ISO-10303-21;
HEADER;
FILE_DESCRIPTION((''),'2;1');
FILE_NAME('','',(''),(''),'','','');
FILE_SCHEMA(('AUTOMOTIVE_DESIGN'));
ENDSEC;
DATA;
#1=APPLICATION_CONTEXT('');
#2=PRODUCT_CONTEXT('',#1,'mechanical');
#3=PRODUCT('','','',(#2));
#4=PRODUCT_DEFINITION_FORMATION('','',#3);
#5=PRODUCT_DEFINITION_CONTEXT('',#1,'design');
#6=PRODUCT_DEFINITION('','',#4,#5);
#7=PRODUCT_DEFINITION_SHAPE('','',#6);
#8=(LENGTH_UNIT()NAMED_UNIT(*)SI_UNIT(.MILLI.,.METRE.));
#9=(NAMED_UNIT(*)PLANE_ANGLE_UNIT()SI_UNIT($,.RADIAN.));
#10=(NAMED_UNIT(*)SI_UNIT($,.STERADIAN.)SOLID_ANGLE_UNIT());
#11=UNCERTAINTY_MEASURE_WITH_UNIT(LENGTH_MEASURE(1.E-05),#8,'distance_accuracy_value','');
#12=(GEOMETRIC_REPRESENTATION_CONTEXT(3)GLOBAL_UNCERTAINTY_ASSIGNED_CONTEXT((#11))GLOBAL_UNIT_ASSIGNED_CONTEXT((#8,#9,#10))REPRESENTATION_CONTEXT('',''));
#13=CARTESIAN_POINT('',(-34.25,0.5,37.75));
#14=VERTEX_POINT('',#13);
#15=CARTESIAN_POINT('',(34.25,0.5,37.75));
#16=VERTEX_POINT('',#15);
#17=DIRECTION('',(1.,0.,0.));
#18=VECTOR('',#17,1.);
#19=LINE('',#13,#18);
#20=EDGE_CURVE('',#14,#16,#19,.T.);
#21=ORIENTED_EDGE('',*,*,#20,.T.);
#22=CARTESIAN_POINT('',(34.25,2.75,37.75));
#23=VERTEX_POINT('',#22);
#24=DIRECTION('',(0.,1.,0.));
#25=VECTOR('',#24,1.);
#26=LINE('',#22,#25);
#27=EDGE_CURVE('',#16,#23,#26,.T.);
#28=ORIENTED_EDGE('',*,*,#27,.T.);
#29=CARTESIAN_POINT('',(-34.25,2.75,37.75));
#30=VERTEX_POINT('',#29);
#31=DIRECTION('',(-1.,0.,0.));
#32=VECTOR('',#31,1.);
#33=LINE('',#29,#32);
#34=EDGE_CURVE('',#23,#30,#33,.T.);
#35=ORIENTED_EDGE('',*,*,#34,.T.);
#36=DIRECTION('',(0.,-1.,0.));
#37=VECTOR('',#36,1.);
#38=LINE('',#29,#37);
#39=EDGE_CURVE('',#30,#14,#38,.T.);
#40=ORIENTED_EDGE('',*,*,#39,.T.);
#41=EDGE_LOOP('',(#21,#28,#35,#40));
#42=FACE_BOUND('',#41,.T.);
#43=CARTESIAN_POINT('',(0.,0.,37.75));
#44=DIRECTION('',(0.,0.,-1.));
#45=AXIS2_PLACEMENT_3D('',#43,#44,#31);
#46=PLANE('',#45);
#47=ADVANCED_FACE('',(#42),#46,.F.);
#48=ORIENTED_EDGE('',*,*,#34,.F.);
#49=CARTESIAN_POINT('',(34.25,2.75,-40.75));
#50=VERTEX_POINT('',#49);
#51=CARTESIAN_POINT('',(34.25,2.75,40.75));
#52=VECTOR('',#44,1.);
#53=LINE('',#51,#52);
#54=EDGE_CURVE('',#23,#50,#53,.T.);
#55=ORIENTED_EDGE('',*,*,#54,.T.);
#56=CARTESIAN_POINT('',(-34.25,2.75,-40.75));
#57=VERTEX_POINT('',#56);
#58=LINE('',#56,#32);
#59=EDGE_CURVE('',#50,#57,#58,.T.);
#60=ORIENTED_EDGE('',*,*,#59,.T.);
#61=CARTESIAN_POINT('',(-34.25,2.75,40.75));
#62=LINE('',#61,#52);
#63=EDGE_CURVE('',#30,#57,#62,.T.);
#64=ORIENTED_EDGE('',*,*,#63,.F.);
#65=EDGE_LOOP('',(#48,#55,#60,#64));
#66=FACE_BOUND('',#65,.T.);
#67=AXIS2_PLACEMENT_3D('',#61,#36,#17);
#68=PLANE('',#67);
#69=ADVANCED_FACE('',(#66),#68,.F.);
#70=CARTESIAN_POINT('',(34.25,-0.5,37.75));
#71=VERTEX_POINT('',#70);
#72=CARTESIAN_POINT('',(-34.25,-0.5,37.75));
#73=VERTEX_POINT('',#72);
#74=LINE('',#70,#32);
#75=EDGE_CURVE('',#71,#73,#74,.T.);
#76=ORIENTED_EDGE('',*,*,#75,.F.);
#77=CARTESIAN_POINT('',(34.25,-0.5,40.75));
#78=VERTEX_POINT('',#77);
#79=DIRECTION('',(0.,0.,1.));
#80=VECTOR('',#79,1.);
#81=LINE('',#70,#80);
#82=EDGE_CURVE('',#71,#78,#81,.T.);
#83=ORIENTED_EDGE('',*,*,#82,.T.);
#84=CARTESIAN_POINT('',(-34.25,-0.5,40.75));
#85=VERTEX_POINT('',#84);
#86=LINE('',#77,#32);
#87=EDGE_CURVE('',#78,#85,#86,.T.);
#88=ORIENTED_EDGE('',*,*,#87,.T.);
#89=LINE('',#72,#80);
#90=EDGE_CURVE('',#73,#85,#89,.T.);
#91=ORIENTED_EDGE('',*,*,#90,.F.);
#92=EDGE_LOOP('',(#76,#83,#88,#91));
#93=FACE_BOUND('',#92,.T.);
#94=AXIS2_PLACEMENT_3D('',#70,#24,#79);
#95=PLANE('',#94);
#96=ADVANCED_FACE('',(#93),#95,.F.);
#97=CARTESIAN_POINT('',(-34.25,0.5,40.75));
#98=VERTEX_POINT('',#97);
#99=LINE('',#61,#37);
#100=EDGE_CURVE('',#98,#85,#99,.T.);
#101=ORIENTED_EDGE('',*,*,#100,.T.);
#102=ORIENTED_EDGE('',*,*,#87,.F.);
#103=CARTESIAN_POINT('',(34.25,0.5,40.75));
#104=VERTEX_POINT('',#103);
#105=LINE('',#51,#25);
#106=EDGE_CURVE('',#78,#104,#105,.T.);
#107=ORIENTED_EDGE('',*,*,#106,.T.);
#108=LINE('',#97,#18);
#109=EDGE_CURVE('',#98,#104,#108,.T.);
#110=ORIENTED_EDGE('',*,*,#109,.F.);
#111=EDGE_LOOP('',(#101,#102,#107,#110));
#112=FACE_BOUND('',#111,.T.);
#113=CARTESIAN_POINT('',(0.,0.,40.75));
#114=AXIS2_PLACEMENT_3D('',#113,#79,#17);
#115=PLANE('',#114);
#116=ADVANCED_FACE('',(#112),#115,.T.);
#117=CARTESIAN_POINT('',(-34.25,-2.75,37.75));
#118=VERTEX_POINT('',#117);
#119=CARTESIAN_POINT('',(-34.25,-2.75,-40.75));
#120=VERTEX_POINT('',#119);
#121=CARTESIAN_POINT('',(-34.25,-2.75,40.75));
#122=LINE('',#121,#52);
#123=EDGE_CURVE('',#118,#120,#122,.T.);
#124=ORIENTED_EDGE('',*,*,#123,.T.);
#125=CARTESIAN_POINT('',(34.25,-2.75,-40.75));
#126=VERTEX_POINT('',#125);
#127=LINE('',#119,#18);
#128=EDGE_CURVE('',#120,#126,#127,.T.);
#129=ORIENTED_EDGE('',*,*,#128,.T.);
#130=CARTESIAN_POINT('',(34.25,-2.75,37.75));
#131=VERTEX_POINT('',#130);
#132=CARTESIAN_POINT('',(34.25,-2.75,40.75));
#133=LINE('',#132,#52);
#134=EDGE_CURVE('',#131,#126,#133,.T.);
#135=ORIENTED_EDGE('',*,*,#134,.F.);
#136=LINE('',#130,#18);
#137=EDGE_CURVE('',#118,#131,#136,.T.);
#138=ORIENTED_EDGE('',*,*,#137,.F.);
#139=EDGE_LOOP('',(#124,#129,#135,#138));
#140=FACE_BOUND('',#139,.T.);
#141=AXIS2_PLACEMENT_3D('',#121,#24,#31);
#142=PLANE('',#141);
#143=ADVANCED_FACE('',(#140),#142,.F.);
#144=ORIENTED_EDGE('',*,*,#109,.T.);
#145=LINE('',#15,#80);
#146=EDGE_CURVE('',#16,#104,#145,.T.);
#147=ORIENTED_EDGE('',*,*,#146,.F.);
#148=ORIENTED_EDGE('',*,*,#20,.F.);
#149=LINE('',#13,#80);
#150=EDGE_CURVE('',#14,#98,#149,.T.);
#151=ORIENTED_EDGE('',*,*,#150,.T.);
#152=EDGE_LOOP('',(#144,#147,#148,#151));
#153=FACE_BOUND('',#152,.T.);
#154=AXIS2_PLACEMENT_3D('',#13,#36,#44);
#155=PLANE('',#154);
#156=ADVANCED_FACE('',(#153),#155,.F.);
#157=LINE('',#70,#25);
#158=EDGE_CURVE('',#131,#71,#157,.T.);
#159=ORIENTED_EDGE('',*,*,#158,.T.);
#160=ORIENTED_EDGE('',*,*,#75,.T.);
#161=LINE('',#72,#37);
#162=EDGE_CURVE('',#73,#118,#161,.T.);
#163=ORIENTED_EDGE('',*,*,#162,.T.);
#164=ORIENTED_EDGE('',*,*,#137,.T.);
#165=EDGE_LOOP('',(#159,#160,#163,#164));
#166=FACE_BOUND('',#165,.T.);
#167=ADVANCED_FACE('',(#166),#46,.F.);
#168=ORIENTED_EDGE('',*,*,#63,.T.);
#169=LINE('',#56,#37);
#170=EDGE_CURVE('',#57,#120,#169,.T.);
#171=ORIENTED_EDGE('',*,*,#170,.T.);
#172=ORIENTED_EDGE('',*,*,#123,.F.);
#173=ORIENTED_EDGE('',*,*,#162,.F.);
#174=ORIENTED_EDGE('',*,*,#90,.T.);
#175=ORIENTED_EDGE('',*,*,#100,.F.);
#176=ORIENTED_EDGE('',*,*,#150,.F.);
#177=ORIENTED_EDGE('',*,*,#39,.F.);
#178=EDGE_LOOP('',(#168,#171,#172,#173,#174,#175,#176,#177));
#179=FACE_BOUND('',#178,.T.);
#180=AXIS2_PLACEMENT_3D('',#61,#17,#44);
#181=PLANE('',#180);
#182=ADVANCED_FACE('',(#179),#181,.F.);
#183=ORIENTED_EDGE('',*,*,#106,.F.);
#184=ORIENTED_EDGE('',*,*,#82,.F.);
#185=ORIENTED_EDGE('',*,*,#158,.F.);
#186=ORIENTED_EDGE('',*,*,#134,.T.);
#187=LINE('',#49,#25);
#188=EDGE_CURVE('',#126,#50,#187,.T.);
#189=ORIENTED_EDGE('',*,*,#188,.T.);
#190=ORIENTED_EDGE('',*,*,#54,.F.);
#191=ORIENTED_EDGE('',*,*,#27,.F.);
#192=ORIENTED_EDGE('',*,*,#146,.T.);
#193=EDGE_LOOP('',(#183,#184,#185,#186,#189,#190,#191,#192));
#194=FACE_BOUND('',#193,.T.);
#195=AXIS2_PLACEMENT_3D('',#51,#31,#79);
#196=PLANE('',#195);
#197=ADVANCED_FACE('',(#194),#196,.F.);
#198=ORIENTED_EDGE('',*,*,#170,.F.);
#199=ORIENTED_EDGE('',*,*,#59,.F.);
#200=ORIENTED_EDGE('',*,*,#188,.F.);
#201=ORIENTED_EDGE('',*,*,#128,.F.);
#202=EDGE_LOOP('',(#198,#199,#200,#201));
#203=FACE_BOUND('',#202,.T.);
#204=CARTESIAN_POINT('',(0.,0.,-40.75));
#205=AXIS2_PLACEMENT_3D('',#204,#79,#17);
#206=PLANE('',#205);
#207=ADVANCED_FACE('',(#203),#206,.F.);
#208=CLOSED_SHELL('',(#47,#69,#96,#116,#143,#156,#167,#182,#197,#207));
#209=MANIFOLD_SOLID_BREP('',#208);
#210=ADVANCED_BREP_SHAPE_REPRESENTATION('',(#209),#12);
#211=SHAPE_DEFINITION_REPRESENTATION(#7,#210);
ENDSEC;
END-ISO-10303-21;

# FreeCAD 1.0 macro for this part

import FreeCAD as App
import Part
import Sketcher
Q = App.Units.Quantity

doc = App.newDocument("Part")
body = doc.addObject("PartDesign::Body", "Body")

# Sketch on XY plane
sketch1 = doc.addObject("Sketcher::SketchObject", "Sketch")
body.addObject(sketch1)
sketch1.AttachmentSupport = (doc.XY_Plane, [""])
sketch1.MapMode = "FlatFace"
sketch1.addGeometry([
    Part.LineSegment(App.Vector(-34.25, 2.75, 0), App.Vector(-34.25, -2.75, 0)),
    Part.LineSegment(App.Vector(-34.25, -2.75, 0), App.Vector(34.25, -2.75, 0)),
    Part.LineSegment(App.Vector(34.25, -2.75, 0), App.Vector(34.25, 2.75, 0)),
    Part.LineSegment(App.Vector(34.25, 2.75, 0), App.Vector(-34.25, 2.75, 0)),
], False)
sketch1.addConstraint([
    Sketcher.Constraint("Coincident", 0, 2, 1, 1),
    Sketcher.Constraint("Coincident", 1, 2, 2, 1),
    Sketcher.Constraint("Coincident", 2, 2, 3, 1),
    Sketcher.Constraint("Coincident", 3, 2, 0, 1),
    Sketcher.Constraint("Vertical", 0),
    Sketcher.Constraint("Horizontal", 1),
    Sketcher.Constraint("Vertical", 2),
    Sketcher.Constraint("Horizontal", 3),
    Sketcher.Constraint("Symmetric", 0, 2, 2, 2, -1, 1),
    Sketcher.Constraint("DistanceX", 1, 1, 1, 2, Q("68.5 mm")),
    Sketcher.Constraint("DistanceY", 0, 2, 0, 1, Q("5.5 mm")),
])
pad1 = doc.addObject("PartDesign::Pad", "Pad")
body.addObject(pad1)
pad1.Profile = sketch1
pad1.Length = 81.5
pad1.Midplane = True

# Sketch on XY plane
sketch2 = doc.addObject("Sketcher::SketchObject", "Sketch001")
body.addObject(sketch2)
sketch2.AttachmentSupport = (doc.XY_Plane, [""])
sketch2.MapMode = "FlatFace"
sketch2.AttachmentOffset = App.Placement(App.Vector(0, 0, 40.75), App.Rotation())
sketch2.addGeometry([
    Part.LineSegment(App.Vector(-34.25, 2.75, 0), App.Vector(-34.25, 0.5, 0)),  # 0
    Part.LineSegment(App.Vector(-34.25, 0.5, 0), App.Vector(34.25, 0.5, 0)),  # 1
    Part.LineSegment(App.Vector(34.25, 0.5, 0), App.Vector(34.25, 2.75, 0)),  # 2
    Part.LineSegment(App.Vector(34.25, 2.75, 0), App.Vector(-34.25, 2.75, 0)),  # 3
    Part.LineSegment(App.Vector(-34.25, -0.5, 0), App.Vector(-34.25, -2.75, 0)),  # 4
    Part.LineSegment(App.Vector(-34.25, -2.75, 0), App.Vector(34.25, -2.75, 0)),  # 5
    Part.LineSegment(App.Vector(34.25, -2.75, 0), App.Vector(34.25, -0.5, 0)),  # 6
    Part.LineSegment(App.Vector(34.25, -0.5, 0), App.Vector(-34.25, -0.5, 0)),  # 7
], False)
sketch2.addConstraint([
    Sketcher.Constraint("Coincident", 0, 2, 1, 1),
    Sketcher.Constraint("Coincident", 1, 2, 2, 1),
    Sketcher.Constraint("Coincident", 2, 2, 3, 1),
    Sketcher.Constraint("Coincident", 3, 2, 0, 1),
    Sketcher.Constraint("Coincident", 4, 2, 5, 1),
    Sketcher.Constraint("Coincident", 5, 2, 6, 1),
    Sketcher.Constraint("Coincident", 6, 2, 7, 1),
    Sketcher.Constraint("Coincident", 7, 2, 4, 1),
    Sketcher.Constraint("Vertical", 0),
    Sketcher.Constraint("Horizontal", 1),
    Sketcher.Constraint("Vertical", 2),
    Sketcher.Constraint("Horizontal", 3),
    Sketcher.Constraint("Vertical", 4),
    Sketcher.Constraint("Horizontal", 5),
    Sketcher.Constraint("Vertical", 6),
    Sketcher.Constraint("Horizontal", 7),
    Sketcher.Constraint("Symmetric", 2, 2, 4, 2, -1, 1),
    Sketcher.Constraint("Symmetric", 0, 2, 6, 2, -1, 1),
    Sketcher.Constraint("Vertical", 3, 2, 4, 2),
    Sketcher.Constraint("DistanceX", 1, 1, 1, 2, Q("68.5 mm")),
    Sketcher.Constraint("DistanceY", 6, 2, 1, 2, Q("1 mm")),
    Sketcher.Constraint("DistanceY", 0, 2, 0, 1, Q("2.25 mm")),
])
pocket1 = doc.addObject("PartDesign::Pocket", "Pocket")
body.addObject(pocket1)
pocket1.Profile = sketch2
pocket1.Length = 3

doc.recompute()
